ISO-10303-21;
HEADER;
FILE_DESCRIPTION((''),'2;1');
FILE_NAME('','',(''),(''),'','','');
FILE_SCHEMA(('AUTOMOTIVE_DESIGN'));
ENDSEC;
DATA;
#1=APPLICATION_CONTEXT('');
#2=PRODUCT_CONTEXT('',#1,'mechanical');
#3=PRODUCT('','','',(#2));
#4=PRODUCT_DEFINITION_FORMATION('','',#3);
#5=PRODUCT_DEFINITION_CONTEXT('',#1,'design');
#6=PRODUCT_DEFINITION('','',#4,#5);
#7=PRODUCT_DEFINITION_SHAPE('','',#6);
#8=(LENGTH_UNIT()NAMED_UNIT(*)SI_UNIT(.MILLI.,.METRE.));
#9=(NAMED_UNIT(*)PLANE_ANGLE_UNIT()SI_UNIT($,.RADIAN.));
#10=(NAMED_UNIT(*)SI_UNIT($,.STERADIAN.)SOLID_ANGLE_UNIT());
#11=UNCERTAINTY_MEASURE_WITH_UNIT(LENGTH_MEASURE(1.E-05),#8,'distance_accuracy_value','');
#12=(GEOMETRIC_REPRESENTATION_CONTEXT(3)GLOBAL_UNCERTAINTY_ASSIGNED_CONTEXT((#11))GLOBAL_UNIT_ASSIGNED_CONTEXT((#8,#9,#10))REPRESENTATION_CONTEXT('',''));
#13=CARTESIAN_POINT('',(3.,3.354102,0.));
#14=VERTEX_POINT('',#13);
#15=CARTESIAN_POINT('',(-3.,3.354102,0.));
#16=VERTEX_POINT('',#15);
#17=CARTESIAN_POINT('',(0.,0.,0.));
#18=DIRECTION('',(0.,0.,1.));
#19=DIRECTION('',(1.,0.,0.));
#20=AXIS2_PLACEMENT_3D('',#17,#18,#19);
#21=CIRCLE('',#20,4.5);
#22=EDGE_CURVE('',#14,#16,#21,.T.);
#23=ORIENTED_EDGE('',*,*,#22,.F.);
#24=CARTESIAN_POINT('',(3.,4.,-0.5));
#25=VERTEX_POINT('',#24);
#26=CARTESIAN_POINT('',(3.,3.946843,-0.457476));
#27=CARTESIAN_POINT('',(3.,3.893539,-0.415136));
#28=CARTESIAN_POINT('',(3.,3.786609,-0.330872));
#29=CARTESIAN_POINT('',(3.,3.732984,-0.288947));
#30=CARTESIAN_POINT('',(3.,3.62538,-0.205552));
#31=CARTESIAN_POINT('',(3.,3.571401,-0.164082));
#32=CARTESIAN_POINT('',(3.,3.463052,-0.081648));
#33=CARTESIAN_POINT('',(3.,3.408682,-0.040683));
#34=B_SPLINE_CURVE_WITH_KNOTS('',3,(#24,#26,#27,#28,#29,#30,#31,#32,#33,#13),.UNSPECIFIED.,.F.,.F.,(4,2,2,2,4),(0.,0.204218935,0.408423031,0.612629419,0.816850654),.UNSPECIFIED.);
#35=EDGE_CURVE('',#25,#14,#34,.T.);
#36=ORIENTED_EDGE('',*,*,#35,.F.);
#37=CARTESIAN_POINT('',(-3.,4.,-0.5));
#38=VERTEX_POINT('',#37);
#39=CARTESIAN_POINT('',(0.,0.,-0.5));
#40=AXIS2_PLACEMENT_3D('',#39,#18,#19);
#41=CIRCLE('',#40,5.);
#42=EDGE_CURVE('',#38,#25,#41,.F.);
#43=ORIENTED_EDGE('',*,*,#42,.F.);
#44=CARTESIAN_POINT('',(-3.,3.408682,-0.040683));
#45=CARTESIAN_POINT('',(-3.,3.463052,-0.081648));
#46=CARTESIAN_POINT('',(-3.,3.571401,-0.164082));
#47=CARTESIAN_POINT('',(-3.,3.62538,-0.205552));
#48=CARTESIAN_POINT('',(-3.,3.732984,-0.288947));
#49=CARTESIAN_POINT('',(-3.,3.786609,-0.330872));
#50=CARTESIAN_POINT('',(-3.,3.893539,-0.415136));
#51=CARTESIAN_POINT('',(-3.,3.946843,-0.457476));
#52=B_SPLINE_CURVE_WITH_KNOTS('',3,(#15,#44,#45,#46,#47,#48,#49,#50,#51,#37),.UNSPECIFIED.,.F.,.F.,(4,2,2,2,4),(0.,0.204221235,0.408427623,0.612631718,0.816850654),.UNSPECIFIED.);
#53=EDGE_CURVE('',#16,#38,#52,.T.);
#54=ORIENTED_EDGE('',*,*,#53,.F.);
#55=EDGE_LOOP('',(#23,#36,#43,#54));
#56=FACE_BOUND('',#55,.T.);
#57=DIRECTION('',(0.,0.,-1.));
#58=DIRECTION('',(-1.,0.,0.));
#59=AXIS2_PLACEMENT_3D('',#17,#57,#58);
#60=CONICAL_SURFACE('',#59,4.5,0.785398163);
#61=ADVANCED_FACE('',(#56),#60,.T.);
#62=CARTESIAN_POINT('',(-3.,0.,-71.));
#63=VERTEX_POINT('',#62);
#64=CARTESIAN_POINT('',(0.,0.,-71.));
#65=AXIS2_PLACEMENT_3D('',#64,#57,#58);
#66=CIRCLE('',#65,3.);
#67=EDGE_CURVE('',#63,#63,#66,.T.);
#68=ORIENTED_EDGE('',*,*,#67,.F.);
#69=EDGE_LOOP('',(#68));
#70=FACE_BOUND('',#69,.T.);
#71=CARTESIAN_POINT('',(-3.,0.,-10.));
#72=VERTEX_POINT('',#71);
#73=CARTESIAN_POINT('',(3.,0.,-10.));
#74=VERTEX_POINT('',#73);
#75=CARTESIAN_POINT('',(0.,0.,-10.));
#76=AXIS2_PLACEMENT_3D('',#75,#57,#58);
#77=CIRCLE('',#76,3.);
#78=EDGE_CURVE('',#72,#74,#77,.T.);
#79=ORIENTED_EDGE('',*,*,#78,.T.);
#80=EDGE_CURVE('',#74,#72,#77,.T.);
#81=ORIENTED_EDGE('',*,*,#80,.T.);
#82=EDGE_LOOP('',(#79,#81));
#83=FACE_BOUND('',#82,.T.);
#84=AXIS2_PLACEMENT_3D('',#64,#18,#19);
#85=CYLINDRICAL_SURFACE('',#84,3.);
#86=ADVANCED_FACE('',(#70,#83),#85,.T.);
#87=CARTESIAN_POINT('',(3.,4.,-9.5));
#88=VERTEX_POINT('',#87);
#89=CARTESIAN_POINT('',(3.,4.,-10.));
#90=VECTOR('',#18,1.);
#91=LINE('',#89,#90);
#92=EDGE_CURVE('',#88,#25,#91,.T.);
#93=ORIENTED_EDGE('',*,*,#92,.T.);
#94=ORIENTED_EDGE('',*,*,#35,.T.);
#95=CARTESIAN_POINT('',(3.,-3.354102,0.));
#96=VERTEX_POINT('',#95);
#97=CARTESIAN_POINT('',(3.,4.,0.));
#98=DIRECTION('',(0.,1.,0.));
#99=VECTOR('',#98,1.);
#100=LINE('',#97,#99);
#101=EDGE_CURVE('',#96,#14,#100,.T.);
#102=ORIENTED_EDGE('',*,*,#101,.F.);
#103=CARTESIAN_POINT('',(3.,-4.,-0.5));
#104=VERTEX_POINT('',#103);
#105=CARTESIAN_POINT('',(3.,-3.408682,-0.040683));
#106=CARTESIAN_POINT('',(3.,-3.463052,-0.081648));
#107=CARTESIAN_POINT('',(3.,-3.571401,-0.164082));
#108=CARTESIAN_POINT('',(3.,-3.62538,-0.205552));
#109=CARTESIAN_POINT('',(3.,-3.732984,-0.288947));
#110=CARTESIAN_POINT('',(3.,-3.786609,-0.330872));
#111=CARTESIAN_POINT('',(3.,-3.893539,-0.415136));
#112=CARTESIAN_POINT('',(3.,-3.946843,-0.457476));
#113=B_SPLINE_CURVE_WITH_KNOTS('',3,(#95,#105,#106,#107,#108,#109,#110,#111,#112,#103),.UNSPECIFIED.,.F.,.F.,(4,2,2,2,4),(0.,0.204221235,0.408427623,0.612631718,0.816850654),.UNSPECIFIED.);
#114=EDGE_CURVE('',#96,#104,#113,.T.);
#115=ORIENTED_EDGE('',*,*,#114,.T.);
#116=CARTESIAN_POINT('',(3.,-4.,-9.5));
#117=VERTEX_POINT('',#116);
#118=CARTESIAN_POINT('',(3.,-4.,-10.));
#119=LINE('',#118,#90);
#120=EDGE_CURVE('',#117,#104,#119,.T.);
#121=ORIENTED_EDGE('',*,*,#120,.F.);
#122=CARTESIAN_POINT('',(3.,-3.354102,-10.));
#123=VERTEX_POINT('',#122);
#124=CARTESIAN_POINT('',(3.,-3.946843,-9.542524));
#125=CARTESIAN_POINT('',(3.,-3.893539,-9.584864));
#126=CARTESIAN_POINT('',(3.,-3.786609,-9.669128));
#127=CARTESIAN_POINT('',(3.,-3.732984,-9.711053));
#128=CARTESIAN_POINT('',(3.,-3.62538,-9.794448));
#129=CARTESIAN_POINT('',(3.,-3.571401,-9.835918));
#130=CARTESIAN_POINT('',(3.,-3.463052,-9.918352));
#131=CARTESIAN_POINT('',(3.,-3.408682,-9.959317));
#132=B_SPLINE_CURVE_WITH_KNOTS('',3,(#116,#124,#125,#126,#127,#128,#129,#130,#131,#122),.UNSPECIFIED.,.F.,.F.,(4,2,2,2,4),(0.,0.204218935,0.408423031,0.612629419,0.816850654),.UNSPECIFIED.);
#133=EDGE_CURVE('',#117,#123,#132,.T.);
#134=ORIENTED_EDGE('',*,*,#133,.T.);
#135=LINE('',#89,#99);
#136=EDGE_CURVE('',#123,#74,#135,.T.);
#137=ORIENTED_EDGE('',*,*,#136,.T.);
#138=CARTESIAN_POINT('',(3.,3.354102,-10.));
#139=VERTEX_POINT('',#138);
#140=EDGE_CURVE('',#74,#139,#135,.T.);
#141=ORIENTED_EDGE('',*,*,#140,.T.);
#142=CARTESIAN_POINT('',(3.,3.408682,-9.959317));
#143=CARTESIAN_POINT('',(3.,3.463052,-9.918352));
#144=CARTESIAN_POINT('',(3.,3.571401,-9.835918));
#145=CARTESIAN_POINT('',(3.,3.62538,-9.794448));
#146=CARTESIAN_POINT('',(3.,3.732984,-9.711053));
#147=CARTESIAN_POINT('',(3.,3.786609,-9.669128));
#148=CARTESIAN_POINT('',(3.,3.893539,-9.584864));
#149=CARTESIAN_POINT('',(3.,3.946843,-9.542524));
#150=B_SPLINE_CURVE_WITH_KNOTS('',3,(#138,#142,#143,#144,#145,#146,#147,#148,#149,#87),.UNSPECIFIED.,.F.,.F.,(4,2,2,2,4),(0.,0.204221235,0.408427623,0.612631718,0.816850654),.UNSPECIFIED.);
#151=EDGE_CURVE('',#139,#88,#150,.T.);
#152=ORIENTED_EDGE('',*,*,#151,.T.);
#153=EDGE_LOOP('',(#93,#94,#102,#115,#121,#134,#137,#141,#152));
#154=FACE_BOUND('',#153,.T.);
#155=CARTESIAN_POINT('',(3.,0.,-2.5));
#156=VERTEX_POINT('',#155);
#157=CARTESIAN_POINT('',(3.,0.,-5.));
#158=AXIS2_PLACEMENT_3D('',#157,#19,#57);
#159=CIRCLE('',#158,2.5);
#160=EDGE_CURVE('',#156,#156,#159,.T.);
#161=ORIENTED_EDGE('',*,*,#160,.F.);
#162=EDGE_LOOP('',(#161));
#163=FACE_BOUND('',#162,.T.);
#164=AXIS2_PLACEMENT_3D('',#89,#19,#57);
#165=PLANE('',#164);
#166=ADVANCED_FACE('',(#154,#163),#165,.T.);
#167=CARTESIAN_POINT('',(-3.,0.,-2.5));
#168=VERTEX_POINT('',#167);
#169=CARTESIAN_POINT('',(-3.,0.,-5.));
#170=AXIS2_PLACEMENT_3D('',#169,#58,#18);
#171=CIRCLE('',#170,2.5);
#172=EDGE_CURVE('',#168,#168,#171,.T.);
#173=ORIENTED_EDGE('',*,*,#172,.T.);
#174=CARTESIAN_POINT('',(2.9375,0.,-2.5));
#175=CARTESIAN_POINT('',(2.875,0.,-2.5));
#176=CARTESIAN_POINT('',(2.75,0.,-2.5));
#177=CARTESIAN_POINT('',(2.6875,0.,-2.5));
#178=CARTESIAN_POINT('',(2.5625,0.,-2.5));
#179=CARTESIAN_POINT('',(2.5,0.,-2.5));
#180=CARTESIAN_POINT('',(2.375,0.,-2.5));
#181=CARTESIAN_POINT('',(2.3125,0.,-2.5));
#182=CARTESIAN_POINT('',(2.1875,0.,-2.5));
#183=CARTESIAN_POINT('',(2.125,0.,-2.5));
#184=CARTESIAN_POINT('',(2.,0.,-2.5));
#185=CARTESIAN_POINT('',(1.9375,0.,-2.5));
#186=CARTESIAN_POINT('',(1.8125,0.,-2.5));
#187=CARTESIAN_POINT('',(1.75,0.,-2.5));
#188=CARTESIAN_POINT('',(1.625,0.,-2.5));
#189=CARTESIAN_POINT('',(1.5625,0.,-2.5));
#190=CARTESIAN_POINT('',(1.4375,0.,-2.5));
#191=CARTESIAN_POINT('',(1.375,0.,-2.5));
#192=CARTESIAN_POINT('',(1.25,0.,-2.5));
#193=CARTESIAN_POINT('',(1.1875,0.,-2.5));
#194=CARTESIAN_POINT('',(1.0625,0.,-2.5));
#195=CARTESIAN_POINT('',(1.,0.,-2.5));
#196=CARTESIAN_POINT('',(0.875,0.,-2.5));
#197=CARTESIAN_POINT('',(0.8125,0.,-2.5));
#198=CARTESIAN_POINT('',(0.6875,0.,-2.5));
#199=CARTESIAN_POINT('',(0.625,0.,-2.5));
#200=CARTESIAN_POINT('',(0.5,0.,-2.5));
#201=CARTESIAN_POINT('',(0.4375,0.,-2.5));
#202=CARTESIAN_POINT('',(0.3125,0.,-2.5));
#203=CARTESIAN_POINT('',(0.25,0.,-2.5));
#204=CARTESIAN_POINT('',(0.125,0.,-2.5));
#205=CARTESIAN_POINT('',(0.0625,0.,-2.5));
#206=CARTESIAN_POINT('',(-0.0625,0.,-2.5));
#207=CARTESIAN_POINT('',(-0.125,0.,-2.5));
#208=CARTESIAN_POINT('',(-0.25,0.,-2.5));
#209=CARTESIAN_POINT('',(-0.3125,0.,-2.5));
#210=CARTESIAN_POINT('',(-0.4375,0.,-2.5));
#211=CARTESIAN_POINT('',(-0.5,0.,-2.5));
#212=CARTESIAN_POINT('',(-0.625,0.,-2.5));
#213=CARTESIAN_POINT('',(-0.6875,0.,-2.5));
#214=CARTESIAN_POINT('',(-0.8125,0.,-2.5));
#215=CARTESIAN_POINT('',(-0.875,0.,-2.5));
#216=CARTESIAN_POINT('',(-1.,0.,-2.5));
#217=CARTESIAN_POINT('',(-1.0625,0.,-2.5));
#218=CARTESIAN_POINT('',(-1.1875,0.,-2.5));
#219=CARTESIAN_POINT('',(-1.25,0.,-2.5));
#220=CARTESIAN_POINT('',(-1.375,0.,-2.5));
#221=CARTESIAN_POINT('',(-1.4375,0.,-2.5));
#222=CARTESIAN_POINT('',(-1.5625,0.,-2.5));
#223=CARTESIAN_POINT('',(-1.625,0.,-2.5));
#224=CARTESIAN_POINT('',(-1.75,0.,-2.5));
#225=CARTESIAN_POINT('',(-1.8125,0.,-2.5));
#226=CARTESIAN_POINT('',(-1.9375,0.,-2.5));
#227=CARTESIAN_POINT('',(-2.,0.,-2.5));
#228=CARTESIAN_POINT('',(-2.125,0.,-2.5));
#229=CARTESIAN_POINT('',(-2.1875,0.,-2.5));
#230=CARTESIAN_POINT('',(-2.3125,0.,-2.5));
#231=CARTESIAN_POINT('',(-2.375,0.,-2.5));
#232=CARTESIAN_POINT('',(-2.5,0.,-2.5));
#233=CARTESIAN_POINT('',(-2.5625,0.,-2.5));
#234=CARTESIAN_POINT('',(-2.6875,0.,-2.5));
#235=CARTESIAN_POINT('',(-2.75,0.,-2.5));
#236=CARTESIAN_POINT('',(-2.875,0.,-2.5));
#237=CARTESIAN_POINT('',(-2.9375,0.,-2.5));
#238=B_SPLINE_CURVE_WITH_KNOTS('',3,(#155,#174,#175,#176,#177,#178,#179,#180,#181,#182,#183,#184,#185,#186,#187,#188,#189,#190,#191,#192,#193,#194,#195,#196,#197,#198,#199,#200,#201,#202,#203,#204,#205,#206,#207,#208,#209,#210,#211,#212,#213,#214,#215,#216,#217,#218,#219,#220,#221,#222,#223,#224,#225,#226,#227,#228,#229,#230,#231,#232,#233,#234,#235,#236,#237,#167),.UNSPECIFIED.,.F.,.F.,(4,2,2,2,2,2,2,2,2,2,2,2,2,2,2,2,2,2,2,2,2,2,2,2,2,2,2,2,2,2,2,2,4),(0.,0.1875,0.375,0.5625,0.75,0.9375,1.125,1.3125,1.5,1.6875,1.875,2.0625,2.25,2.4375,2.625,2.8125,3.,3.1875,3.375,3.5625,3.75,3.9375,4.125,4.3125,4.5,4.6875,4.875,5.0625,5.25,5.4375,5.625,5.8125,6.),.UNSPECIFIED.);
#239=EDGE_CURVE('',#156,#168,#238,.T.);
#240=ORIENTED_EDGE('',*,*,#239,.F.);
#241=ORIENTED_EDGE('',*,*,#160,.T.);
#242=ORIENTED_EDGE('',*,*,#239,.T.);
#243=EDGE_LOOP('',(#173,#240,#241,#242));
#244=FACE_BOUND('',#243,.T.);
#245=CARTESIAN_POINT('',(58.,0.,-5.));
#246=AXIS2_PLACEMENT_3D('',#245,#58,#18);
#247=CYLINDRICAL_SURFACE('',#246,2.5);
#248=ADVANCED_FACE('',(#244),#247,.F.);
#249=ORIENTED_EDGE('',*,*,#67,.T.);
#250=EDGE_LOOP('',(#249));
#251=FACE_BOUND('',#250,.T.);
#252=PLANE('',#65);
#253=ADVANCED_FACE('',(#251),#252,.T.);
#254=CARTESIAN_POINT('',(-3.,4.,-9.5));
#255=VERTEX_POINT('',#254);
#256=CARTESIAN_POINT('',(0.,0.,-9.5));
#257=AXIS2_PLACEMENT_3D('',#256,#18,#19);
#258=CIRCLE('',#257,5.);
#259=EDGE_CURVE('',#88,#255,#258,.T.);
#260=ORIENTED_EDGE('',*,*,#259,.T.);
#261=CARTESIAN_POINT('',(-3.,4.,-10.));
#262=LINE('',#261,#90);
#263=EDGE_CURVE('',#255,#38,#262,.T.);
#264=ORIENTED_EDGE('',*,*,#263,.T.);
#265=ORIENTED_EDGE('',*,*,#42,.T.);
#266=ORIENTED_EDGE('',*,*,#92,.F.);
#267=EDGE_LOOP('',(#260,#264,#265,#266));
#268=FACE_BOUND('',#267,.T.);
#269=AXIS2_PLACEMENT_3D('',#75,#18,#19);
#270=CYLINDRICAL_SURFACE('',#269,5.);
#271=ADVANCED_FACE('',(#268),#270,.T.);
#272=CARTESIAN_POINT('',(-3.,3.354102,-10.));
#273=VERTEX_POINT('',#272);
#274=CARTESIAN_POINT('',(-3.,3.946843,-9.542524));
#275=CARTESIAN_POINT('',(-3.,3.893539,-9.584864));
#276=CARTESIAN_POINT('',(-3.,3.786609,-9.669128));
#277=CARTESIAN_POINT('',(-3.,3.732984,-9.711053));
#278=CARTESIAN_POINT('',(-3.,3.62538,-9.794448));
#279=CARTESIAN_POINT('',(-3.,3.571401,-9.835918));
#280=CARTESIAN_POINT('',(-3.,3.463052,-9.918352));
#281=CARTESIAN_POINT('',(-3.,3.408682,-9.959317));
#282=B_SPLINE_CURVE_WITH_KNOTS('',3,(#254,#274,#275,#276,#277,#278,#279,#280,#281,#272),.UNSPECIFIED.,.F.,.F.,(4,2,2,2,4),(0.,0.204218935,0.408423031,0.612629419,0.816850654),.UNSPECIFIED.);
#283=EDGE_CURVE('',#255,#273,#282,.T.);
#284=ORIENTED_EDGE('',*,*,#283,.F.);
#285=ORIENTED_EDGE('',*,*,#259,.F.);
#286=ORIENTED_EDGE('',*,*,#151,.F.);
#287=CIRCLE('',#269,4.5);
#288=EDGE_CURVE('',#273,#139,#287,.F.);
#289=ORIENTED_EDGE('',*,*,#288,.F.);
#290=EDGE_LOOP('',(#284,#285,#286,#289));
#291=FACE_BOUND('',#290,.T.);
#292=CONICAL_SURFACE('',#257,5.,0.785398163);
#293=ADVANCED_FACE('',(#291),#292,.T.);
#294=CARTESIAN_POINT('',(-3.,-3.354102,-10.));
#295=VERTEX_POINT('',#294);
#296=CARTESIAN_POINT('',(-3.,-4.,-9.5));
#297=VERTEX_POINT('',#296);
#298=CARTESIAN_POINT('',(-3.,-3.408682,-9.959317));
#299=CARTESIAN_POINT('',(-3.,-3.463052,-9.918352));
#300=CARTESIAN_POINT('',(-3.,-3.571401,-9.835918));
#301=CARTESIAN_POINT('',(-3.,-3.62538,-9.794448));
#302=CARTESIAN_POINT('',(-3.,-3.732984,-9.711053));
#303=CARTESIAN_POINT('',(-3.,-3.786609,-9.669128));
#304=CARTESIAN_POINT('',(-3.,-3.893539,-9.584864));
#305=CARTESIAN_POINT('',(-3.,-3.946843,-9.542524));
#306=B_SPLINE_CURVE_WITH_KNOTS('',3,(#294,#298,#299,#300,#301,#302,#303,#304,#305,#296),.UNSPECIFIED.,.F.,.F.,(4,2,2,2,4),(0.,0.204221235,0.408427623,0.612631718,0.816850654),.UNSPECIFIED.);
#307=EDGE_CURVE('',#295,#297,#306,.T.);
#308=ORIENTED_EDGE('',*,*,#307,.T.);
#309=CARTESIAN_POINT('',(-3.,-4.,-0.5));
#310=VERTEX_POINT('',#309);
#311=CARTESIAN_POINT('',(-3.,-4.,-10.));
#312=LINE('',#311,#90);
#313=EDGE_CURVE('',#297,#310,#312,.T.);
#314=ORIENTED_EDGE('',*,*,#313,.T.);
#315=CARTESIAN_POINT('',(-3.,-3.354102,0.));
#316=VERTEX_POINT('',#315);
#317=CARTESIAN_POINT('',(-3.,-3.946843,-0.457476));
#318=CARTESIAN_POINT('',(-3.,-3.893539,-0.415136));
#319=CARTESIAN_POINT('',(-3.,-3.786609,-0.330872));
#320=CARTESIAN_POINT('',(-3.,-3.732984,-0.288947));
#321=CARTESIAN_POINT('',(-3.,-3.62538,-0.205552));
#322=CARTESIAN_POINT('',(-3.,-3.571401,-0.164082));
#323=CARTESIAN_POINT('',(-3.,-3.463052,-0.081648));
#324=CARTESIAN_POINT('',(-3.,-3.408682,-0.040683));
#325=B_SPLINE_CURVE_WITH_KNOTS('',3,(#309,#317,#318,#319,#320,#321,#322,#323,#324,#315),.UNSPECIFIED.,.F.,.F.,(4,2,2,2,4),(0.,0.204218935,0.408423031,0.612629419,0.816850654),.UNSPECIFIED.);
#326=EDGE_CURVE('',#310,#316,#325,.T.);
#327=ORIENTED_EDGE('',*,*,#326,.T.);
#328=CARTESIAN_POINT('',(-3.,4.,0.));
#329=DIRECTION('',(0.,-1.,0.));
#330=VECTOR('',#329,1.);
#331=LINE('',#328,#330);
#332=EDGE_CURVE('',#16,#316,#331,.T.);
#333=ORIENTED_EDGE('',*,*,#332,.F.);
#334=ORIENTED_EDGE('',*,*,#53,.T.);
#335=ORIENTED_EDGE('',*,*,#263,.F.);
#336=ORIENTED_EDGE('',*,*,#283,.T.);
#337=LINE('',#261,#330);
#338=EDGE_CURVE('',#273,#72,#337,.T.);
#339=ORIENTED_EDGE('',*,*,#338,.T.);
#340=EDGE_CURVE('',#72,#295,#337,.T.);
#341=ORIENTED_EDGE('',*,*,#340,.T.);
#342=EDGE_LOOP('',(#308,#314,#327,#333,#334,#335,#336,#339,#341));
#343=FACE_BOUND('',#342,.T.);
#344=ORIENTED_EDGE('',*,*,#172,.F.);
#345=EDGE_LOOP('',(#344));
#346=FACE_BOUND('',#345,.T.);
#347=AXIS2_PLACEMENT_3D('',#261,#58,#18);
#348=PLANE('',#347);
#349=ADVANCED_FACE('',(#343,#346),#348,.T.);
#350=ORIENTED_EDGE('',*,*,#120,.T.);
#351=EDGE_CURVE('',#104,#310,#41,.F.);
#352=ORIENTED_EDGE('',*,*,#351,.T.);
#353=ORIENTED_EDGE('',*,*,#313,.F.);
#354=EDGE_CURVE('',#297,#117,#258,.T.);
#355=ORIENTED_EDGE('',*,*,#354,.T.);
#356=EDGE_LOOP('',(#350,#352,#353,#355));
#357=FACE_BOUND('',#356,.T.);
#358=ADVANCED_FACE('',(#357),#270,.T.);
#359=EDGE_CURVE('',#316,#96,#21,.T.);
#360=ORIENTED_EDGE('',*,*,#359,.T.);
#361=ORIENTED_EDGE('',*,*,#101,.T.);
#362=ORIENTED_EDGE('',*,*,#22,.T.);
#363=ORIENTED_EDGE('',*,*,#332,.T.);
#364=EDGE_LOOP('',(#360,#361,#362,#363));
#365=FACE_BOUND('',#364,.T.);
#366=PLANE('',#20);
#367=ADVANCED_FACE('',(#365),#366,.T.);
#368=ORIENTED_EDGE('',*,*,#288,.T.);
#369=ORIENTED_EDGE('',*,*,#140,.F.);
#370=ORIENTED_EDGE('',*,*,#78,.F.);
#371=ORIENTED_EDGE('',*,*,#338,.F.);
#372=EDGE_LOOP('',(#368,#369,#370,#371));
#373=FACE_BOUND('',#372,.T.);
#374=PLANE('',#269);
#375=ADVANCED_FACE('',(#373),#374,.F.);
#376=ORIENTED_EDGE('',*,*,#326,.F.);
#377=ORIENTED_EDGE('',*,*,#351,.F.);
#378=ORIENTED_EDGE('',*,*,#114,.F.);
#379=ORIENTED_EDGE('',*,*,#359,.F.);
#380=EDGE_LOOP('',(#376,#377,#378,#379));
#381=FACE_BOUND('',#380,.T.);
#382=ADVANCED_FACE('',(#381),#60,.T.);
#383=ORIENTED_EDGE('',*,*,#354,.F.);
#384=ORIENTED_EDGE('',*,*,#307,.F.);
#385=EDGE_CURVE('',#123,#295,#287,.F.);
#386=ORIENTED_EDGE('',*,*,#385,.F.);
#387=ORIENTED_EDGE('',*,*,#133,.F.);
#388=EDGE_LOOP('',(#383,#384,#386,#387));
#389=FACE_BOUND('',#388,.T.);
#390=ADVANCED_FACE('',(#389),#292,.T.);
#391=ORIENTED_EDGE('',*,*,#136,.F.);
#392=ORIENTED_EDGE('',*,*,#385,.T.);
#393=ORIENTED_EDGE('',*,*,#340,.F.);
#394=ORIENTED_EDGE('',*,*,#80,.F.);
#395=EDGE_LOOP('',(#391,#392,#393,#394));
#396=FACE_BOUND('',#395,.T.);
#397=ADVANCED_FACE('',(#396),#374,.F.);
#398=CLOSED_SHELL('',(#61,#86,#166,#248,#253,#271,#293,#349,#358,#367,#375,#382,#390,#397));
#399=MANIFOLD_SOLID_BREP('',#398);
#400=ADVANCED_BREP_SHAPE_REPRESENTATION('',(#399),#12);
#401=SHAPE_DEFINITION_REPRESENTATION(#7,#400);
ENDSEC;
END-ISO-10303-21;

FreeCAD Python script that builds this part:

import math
import FreeCAD as App
import Part
import Sketcher


def edges_at(feature, points):
    """Names of the edges that pass closest to the given points."""
    edges = feature.Shape.Edges
    near = lambda p: min(range(len(edges)), key=lambda i: edges[i].distToShape(Part.Vertex(*p))[0])
    return sorted({f"Edge{near(p) + 1}" for p in points})

doc = App.newDocument("Part")
body = doc.addObject("PartDesign::Body", "Body")

sketch1 = body.newObject("Sketcher::SketchObject", "Sketch")
sketch1.AttachmentSupport = (doc.getObject("XY_Plane"), [""])
sketch1.MapMode = "FlatFace"
sketch1.addGeometry([
    Part.LineSegment(App.Vector(3, -4, 0), App.Vector(3, 4, 0)),
    Part.ArcOfCircle(Part.Circle(App.Vector(0, 0, 0), App.Vector(0, 0, 1), 5), math.radians(53), math.radians(127)),
    Part.LineSegment(App.Vector(-3, 4, 0), App.Vector(-3, -4, 0)),
    Part.ArcOfCircle(Part.Circle(App.Vector(0, 0, 0), App.Vector(0, 0, 1), 5), math.radians(-127), math.radians(-53)),
], False)
sketch1.addConstraint([
    Sketcher.Constraint("Coincident", 0, 2, 1, 1),
    Sketcher.Constraint("Coincident", 1, 2, 2, 1),
    Sketcher.Constraint("Coincident", 2, 2, 3, 1),
    Sketcher.Constraint("Coincident", 3, 2, 0, 1),
    Sketcher.Constraint("Vertical", 0),
    Sketcher.Constraint("Vertical", 2),
    Sketcher.Constraint("Coincident", 1, 3, -1, 1),
    Sketcher.Constraint("Coincident", 3, 3, -1, 1),
    Sketcher.Constraint("Equal", 1, 3),
    Sketcher.Constraint("Horizontal", 0, 2, 1, 2),
    Sketcher.Constraint("Radius", 1, 5.0),
    Sketcher.Constraint("DistanceY", 0, 1, 0, 2, 8.0),
])
pad1 = body.newObject("PartDesign::Pad", "Pad")
pad1.Profile = sketch1
pad1.Length = 10
pad1.Reversed = True

sketch2 = body.newObject("Sketcher::SketchObject", "Sketch001")
sketch2.AttachmentSupport = (doc.getObject("XY_Plane"), [""])
sketch2.MapMode = "FlatFace"
sketch2.AttachmentOffset = App.Placement(App.Vector(0, 0, -10), App.Rotation())
sketch2.addGeometry(Part.Circle(App.Vector(0, 0, 0), App.Vector(0, 0, 1), 3), False)
sketch2.addConstraint([
    Sketcher.Constraint("Coincident", 0, 3, -1, 1),
    Sketcher.Constraint("Diameter", 0, 6.0),
])
pad2 = body.newObject("PartDesign::Pad", "Pad001")
pad2.Profile = sketch2
pad2.Length = 61
pad2.Reversed = True
doc.recompute()

chamfer = body.newObject("PartDesign::Chamfer", "Chamfer")
chamfer.Base = (pad2, edges_at(pad2, [
    (0, -5, -10),
    (0, 5, -10),
    (0, -5, 0),
    (0, 5, 0),
]))
chamfer.Size = 0.5

sketch3 = body.newObject("Sketcher::SketchObject", "Sketch002")
sketch3.AttachmentSupport = (doc.getObject("YZ_Plane"), [""])
sketch3.MapMode = "FlatFace"
sketch3.AttachmentOffset = App.Placement(App.Vector(0, 0, -3), App.Rotation())
sketch3.addGeometry(Part.Circle(App.Vector(0, -5, 0), App.Vector(0, 0, 1), 2.5), False)
sketch3.addConstraint([
    Sketcher.Constraint("PointOnObject", 0, 3, -2),
    Sketcher.Constraint("Diameter", 0, 5.0),
    Sketcher.Constraint("DistanceY", 0, 3, -1, 1, 5.0),
])
pocket1 = body.newObject("PartDesign::Pocket", "Pocket")
pocket1.Profile = sketch3
pocket1.Length = 61
pocket1.Reversed = True

doc.recompute()
